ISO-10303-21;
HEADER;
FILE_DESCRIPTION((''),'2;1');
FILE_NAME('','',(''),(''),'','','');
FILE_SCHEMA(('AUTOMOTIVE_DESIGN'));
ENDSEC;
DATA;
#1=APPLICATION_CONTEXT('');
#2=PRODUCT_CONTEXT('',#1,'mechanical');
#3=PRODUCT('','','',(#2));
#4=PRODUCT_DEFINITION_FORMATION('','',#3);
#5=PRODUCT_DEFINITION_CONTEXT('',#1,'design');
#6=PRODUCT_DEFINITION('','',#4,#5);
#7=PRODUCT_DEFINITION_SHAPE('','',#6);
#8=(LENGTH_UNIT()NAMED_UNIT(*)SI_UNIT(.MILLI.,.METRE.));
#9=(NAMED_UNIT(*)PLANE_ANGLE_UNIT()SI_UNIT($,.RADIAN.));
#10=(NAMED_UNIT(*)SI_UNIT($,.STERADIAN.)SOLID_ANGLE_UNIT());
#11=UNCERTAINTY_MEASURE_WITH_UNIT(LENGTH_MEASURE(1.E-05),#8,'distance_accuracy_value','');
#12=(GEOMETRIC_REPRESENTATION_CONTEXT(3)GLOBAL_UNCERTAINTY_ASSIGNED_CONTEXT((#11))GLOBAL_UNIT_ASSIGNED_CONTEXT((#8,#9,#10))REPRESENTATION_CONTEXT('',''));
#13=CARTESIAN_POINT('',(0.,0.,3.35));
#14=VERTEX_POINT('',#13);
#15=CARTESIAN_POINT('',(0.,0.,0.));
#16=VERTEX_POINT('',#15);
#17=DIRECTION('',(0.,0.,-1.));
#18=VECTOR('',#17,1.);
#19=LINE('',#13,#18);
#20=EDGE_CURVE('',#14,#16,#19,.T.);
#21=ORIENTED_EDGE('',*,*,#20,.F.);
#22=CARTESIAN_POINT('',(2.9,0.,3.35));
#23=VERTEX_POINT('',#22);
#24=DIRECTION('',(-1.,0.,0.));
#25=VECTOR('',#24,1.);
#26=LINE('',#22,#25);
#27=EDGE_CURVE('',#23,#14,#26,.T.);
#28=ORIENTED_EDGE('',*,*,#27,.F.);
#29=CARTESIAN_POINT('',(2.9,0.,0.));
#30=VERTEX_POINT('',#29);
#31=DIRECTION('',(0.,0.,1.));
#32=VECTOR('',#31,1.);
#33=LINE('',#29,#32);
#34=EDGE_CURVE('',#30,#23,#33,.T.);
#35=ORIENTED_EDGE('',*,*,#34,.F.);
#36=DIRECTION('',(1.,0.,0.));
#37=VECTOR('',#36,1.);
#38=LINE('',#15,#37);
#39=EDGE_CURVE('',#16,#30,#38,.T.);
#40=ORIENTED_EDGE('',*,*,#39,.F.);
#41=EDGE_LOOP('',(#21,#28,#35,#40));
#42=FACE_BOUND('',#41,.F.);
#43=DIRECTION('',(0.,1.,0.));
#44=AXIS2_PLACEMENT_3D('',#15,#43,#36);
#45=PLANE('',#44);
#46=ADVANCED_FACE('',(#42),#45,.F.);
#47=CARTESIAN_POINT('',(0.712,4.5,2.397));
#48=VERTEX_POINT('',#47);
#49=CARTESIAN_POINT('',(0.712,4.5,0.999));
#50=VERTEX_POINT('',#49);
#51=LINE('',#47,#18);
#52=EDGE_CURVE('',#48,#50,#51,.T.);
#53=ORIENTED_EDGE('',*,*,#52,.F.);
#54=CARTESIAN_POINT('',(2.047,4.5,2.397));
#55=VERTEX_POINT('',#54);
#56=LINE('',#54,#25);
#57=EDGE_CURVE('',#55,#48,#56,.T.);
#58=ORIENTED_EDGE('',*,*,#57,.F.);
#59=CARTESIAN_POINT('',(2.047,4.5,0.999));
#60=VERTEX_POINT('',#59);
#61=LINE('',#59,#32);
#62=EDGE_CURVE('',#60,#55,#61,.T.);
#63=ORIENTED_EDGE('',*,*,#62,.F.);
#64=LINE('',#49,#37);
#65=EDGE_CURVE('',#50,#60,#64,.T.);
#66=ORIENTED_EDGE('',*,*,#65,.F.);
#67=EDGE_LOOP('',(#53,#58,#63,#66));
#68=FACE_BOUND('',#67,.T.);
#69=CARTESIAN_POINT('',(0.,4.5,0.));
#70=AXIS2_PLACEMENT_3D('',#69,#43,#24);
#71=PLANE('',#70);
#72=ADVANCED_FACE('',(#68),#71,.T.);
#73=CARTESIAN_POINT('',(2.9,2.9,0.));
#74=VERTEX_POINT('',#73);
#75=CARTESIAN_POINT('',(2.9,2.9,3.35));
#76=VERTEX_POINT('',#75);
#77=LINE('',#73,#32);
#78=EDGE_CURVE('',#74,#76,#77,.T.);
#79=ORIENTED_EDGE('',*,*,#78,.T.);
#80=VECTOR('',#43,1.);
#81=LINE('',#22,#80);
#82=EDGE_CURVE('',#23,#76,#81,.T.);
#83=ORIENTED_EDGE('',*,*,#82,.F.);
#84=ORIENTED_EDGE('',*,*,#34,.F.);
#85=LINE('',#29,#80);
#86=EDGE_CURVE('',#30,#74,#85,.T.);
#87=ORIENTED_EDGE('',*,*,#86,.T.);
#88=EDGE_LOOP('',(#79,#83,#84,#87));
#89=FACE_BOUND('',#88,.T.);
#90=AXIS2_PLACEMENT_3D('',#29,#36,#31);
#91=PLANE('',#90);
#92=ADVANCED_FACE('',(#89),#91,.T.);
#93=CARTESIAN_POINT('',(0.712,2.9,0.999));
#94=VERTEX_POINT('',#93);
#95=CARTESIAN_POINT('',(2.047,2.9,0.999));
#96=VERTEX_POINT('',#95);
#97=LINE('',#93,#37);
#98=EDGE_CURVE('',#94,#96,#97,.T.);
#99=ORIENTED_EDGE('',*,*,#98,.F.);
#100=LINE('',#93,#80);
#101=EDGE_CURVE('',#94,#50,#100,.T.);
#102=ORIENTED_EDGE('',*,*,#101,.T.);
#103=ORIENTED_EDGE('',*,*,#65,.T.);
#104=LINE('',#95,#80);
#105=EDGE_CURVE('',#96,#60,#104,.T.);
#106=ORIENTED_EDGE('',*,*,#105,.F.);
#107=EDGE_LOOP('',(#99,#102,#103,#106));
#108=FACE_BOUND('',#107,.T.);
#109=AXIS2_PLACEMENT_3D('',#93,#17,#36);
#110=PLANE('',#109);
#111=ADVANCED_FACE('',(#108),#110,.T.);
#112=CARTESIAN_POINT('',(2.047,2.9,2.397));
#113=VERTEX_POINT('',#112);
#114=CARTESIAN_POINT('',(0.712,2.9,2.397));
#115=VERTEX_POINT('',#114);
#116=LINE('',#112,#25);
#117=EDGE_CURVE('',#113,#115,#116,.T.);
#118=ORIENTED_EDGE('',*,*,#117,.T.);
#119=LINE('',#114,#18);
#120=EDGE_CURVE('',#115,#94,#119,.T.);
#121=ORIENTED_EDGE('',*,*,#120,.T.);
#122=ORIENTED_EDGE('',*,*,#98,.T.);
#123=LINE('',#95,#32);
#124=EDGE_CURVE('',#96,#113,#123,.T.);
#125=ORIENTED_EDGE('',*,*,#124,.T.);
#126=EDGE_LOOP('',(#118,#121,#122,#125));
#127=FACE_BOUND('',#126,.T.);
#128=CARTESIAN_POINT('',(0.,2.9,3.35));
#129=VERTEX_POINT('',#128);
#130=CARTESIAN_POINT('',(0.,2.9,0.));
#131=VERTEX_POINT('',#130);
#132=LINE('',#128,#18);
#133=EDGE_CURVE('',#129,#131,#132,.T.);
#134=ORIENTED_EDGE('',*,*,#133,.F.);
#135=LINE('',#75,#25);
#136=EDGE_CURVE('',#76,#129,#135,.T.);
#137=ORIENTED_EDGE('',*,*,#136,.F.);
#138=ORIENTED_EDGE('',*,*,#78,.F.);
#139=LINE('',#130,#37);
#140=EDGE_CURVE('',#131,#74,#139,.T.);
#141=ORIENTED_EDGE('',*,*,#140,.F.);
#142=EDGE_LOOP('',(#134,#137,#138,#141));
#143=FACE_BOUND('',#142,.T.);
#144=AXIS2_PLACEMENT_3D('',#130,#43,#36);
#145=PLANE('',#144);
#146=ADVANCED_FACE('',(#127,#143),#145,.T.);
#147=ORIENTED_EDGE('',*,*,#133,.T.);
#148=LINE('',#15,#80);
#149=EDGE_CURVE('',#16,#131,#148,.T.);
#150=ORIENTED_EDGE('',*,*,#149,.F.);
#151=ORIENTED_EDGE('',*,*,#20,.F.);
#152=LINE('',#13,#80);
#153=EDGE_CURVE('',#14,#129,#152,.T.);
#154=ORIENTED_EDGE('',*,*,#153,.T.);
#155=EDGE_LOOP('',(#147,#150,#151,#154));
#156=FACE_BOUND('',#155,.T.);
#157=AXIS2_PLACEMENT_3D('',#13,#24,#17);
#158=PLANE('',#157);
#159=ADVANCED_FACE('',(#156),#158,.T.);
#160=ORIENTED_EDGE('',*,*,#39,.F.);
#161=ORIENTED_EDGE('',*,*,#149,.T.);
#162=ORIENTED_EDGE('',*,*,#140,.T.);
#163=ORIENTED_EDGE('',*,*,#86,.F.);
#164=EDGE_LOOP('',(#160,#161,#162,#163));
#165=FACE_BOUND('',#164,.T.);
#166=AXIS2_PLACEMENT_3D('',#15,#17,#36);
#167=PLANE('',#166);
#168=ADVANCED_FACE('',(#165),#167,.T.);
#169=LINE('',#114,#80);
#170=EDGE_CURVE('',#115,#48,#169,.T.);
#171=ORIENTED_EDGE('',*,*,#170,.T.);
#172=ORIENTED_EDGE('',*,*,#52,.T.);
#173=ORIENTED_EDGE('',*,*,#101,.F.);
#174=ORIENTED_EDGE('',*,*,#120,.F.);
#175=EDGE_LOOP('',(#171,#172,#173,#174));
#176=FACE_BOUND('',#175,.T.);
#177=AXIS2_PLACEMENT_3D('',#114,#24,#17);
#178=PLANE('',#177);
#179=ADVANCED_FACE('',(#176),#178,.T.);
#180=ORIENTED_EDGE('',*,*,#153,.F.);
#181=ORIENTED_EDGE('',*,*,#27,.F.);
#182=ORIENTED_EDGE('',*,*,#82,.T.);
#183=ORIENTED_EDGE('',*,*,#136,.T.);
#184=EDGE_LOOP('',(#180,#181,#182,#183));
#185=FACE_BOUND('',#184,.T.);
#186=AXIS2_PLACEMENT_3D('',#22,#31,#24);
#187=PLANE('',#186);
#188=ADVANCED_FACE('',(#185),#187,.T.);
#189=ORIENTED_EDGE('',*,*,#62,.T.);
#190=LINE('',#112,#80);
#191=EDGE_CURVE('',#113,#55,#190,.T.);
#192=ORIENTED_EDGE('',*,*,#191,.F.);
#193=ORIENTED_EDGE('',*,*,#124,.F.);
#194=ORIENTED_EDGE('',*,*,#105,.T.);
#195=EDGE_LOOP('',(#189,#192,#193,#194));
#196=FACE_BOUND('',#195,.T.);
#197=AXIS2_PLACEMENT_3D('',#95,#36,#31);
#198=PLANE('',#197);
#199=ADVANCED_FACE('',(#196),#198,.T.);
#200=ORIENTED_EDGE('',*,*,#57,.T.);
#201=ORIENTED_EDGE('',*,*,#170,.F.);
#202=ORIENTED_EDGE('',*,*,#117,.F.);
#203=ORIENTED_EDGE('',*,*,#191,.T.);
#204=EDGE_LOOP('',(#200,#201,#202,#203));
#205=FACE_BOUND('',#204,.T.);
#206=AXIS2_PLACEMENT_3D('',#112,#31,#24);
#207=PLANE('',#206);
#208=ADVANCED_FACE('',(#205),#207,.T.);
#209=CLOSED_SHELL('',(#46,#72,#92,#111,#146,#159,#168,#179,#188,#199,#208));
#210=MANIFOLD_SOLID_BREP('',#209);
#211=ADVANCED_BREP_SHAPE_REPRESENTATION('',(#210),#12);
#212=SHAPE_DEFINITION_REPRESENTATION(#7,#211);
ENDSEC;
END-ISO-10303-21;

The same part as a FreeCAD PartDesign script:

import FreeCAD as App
import Part
import Sketcher
from FreeCAD import Vector
Q = App.Units.Quantity

doc = App.newDocument("Part")
body = doc.addObject("PartDesign::Body", "Body")

sketch1 = body.newObject("Sketcher::SketchObject", "Sketch")
sketch1.AttachmentSupport = (doc.getObject("XZ_Plane"), [""])
sketch1.MapMode = "FlatFace"
sketch1.addGeometry(Part.LineSegment(Vector(2.9, 0, 0), Vector(0, 0, 0)), False)
sketch1.addGeometry(Part.LineSegment(Vector(0, 0, 0), Vector(0, 3.35, 0)), False)
sketch1.addGeometry(Part.LineSegment(Vector(0, 3.35, 0), Vector(2.9, 3.35, 0)), False)
sketch1.addGeometry(Part.LineSegment(Vector(2.9, 3.35, 0), Vector(2.9, 0, 0)), False)
sketch1.addConstraint(Sketcher.Constraint("Coincident", 0, 2, 1, 1))
sketch1.addConstraint(Sketcher.Constraint("Coincident", 1, 2, 2, 1))
sketch1.addConstraint(Sketcher.Constraint("Coincident", 2, 2, 3, 1))
sketch1.addConstraint(Sketcher.Constraint("Coincident", 3, 2, 0, 1))
sketch1.addConstraint(Sketcher.Constraint("Horizontal", 0))
sketch1.addConstraint(Sketcher.Constraint("Vertical", 1))
sketch1.addConstraint(Sketcher.Constraint("Horizontal", 2))
sketch1.addConstraint(Sketcher.Constraint("Vertical", 3))
sketch1.addConstraint(Sketcher.Constraint("Coincident", 0, 2, -1, 1))
sketch1.addConstraint(Sketcher.Constraint("DistanceX", 0, 2, 0, 1, Q("2.9 mm")))
sketch1.addConstraint(Sketcher.Constraint("DistanceY", 1, 1, 1, 2, Q("3.35 mm")))
pad1 = body.newObject("PartDesign::Pad", "Pad")
pad1.Profile = sketch1
pad1.Length = 2.9
pad1.Reversed = True

sketch2 = body.newObject("Sketcher::SketchObject", "Sketch001")
sketch2.AttachmentSupport = (doc.getObject("XZ_Plane"), [""])
sketch2.MapMode = "FlatFace"
sketch2.AttachmentOffset = App.Placement(Vector(0, 0, -2.9), App.Rotation())
sketch2.addGeometry(Part.LineSegment(Vector(2.047, 0.999, 0), Vector(0.712, 0.999, 0)), False)
sketch2.addGeometry(Part.LineSegment(Vector(0.712, 0.999, 0), Vector(0.712, 2.397, 0)), False)
sketch2.addGeometry(Part.LineSegment(Vector(0.712, 2.397, 0), Vector(2.047, 2.397, 0)), False)
sketch2.addGeometry(Part.LineSegment(Vector(2.047, 2.397, 0), Vector(2.047, 0.999, 0)), False)
sketch2.addConstraint(Sketcher.Constraint("Coincident", 0, 2, 1, 1))
sketch2.addConstraint(Sketcher.Constraint("Coincident", 1, 2, 2, 1))
sketch2.addConstraint(Sketcher.Constraint("Coincident", 2, 2, 3, 1))
sketch2.addConstraint(Sketcher.Constraint("Coincident", 3, 2, 0, 1))
sketch2.addConstraint(Sketcher.Constraint("Horizontal", 0))
sketch2.addConstraint(Sketcher.Constraint("Vertical", 1))
sketch2.addConstraint(Sketcher.Constraint("Horizontal", 2))
sketch2.addConstraint(Sketcher.Constraint("Vertical", 3))
sketch2.addConstraint(Sketcher.Constraint("DistanceX", 0, 2, 0, 1, Q("1.335 mm")))
sketch2.addConstraint(Sketcher.Constraint("DistanceY", 1, 1, 1, 2, Q("1.398 mm")))
sketch2.addConstraint(Sketcher.Constraint("DistanceX", -1, 1, 0, 2, Q("0.712 mm")))
sketch2.addConstraint(Sketcher.Constraint("DistanceY", -1, 1, 0, 2, Q("0.999 mm")))
pad2 = body.newObject("PartDesign::Pad", "Pad001")
pad2.Profile = sketch2
pad2.Length = 1.6
pad2.Reversed = True

doc.recompute()
